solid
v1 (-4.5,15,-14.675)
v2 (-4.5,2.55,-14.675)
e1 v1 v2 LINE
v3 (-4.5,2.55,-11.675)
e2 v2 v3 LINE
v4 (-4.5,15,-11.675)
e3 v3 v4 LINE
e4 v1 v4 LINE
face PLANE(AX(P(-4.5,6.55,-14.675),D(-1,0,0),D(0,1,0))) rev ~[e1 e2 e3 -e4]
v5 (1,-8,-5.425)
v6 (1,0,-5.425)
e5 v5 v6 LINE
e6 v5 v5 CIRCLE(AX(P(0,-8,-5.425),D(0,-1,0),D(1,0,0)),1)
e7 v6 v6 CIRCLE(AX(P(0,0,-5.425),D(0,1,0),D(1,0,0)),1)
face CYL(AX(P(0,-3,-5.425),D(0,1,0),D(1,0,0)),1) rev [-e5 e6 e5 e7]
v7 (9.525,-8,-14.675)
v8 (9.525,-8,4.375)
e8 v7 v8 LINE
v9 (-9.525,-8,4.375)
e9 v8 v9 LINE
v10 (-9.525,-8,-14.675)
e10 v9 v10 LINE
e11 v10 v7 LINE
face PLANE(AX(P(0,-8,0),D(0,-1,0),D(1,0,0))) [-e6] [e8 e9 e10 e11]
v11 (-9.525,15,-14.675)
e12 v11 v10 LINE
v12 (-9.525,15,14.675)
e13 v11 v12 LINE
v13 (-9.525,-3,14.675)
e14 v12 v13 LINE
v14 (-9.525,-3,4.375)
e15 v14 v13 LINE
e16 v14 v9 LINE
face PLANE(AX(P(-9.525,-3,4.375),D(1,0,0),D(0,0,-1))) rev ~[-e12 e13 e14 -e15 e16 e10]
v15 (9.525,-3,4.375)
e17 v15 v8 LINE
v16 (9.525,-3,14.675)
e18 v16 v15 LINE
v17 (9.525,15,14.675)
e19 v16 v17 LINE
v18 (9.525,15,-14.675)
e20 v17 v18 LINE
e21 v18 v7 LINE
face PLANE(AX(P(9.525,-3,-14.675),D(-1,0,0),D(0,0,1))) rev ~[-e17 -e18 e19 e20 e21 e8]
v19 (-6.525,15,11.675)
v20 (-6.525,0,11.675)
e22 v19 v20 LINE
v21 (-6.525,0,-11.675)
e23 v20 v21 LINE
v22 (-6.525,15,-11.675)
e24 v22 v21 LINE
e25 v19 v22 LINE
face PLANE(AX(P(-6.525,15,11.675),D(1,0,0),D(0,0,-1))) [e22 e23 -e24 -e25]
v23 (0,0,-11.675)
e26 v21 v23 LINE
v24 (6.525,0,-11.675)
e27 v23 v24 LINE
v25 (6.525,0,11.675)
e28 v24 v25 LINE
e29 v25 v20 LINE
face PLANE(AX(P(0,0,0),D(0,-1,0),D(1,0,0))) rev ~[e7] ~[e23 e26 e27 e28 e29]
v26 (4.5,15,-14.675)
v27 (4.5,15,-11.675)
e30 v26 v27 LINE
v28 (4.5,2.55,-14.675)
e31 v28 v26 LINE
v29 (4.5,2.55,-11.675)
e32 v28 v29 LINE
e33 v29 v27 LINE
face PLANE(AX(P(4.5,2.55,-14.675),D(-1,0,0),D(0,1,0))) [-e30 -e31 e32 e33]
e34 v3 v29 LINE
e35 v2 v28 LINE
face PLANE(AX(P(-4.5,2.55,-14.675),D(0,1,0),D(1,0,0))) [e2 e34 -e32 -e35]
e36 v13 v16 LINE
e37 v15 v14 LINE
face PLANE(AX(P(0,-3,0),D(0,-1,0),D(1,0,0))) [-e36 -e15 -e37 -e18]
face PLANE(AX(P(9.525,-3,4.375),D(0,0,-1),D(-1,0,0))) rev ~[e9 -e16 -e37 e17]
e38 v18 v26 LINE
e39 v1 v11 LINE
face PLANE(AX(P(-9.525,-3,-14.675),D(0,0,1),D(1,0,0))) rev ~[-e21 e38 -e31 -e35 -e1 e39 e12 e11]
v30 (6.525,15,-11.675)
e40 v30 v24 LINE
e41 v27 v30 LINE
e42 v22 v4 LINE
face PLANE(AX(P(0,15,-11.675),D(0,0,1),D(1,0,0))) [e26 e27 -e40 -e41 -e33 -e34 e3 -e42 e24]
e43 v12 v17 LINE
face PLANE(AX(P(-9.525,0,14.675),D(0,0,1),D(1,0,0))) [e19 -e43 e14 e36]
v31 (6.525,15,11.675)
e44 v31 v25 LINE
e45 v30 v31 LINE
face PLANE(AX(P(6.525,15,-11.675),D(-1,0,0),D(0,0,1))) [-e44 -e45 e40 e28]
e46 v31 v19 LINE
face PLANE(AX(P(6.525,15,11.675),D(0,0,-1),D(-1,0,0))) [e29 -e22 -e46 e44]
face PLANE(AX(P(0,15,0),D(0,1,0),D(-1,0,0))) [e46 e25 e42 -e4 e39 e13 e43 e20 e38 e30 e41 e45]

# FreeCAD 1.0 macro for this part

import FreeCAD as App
import Part
import Sketcher

V = App.Vector
Q = App.Units.Quantity


def add_polygon(sketch, points):
    """Adds a closed chain of lines whose ends are joined by coincident constraints."""
    first, n = sketch.GeometryCount, len(points)
    for a, b in zip(points, points[1:] + points[:1]):
        sketch.addGeometry(Part.LineSegment(App.Vector(*a, 0), App.Vector(*b, 0)), False)
    for i in range(n):
        sketch.addConstraint(Sketcher.Constraint("Coincident", first + i, 2, first + (i + 1) % n, 1))

doc = App.newDocument("Part")
body = doc.addObject("PartDesign::Body", "Body")

# Sketch on XZ plane
sketch1 = body.newObject("Sketcher::SketchObject", "Sketch")
sketch1.AttachmentSupport = (doc.getObject("XZ_Plane"), [""])
sketch1.MapMode = "FlatFace"
add_polygon(sketch1, [(-10, -15), (-10, 15), (10, 15), (10, -15)])  # lines 0-3
add_polygon(sketch1, [(6, 11), (-6, 11), (-6, -11), (6, -11)])  # lines 4-7
sketch1.addConstraint(Sketcher.Constraint("Vertical", 0))
sketch1.addConstraint(Sketcher.Constraint("Horizontal", 1))
sketch1.addConstraint(Sketcher.Constraint("Vertical", 2))
sketch1.addConstraint(Sketcher.Constraint("Horizontal", 3))
sketch1.addConstraint(Sketcher.Constraint("Horizontal", 4))
sketch1.addConstraint(Sketcher.Constraint("Vertical", 5))
sketch1.addConstraint(Sketcher.Constraint("Horizontal", 6))
sketch1.addConstraint(Sketcher.Constraint("Vertical", 7))
sketch1.addConstraint(Sketcher.Constraint("Symmetric", 0, 2, 2, 2, -1, 1))
sketch1.addConstraint(Sketcher.Constraint("Symmetric", 4, 2, 6, 2, -1, 1))
sketch1.addConstraint(Sketcher.Constraint("DistanceX", 4, 2, 4, 1, Q("12.45 mm")))
sketch1.addConstraint(Sketcher.Constraint("DistanceY", 5, 2, 5, 1, Q("22.75 mm")))
sketch1.addConstraint(Sketcher.Constraint("DistanceX", 0, 2, 4, 2, Q("3.3 mm")))
sketch1.addConstraint(Sketcher.Constraint("DistanceY", 4, 2, 0, 2, Q("3.3 mm")))
pad1 = body.newObject("PartDesign::Pad", "Pad")
pad1.Profile = sketch1
pad1.Length = 15
pad1.Reversed = True

# Sketch on XY plane
sketch2 = body.newObject("Sketcher::SketchObject", "Sketch001")
sketch2.AttachmentSupport = (doc.getObject("XY_Plane"), [""])
sketch2.MapMode = "FlatFace"
sketch2.AttachmentOffset = App.Placement(V(0, 0, -14.675), App.Rotation())
add_polygon(sketch2, [(4, 3), (-4, 3), (-4, 15), (4, 15)])  # lines 0-3
sketch2.addConstraint(Sketcher.Constraint("Horizontal", 0))
sketch2.addConstraint(Sketcher.Constraint("Vertical", 1))
sketch2.addConstraint(Sketcher.Constraint("Horizontal", 2))
sketch2.addConstraint(Sketcher.Constraint("Vertical", 3))
sketch2.addConstraint(Sketcher.Constraint("DistanceX", 0, 2, 0, 1, Q("9 mm")))
sketch2.addConstraint(Sketcher.Constraint("DistanceY", -1, 1, 1, 2, Q("15 mm")))
sketch2.addConstraint(Sketcher.Constraint("DistanceY", 1, 1, 1, 2, Q("12.45 mm")))
sketch2.addConstraint(Sketcher.Constraint("DistanceX", 0, 2, -1, 1, Q("4.5 mm")))
pocket1 = body.newObject("PartDesign::Pocket", "Pocket")
pocket1.Profile = sketch2
pocket1.Type = "UpToFirst"
pocket1.Reversed = True

# Sketch on XZ plane
sketch3 = body.newObject("Sketcher::SketchObject", "Sketch002")
sketch3.AttachmentSupport = (doc.getObject("XZ_Plane"), [""])
sketch3.MapMode = "FlatFace"
add_polygon(sketch3, [(10, 15), (-10, 15), (-10, -15), (10, -15)])  # lines 0-3
sketch3.addConstraint(Sketcher.Constraint("Horizontal", 0))
sketch3.addConstraint(Sketcher.Constraint("Vertical", 1))
sketch3.addConstraint(Sketcher.Constraint("Horizontal", 2))
sketch3.addConstraint(Sketcher.Constraint("Vertical", 3))
sketch3.addConstraint(Sketcher.Constraint("Symmetric", 0, 2, 2, 2, -1, 1))
sketch3.addConstraint(Sketcher.Constraint("DistanceX", 0, 2, 0, 1, Q("19.05 mm")))
sketch3.addConstraint(Sketcher.Constraint("DistanceY", 1, 2, 1, 1, Q("29.35 mm")))
pad2 = body.newObject("PartDesign::Pad", "Pad001")
pad2.Profile = sketch3
pad2.Length = 3

# Sketch on XZ plane
sketch4 = body.newObject("Sketcher::SketchObject", "Sketch003")
sketch4.AttachmentSupport = (doc.getObject("XZ_Plane"), [""])
sketch4.MapMode = "FlatFace"
sketch4.AttachmentOffset = App.Placement(V(0, 0, 3), App.Rotation())
sketch4.addGeometry(Part.Circle(V(0, -5.4, 0), V(0, 0, 1), 1), False)
sketch4.addConstraint(Sketcher.Constraint("PointOnObject", 0, 3, -2))
sketch4.addConstraint(Sketcher.Constraint("Diameter", 0, Q("2 mm")))
sketch4.addConstraint(Sketcher.Constraint("DistanceY", 0, 3, -1, 1, Q("5.425 mm")))
pocket2 = body.newObject("PartDesign::Pocket", "Pocket001")
pocket2.Profile = sketch4
pocket2.Type = "UpToFirst"

# Sketch on XZ plane
sketch5 = body.newObject("Sketcher::SketchObject", "Sketch004")
sketch5.AttachmentSupport = (doc.getObject("XZ_Plane"), [""])
sketch5.MapMode = "FlatFace"
sketch5.AttachmentOffset = App.Placement(V(0, 0, 3), App.Rotation())
add_polygon(sketch5, [(-9.5, 4.4), (-9.5, -14.7), (9.5, -14.7), (9.5, 4.4)])  # lines 0-3
sketch5.addGeometry(Part.Circle(V(0, -5.4, 0), V(0, 0, 1), 1), False)  # 4
sketch5.addConstraint(Sketcher.Constraint("Vertical", 0))
sketch5.addConstraint(Sketcher.Constraint("Horizontal", 1))
sketch5.addConstraint(Sketcher.Constraint("Vertical", 2))
sketch5.addConstraint(Sketcher.Constraint("Horizontal", 3))
sketch5.addConstraint(Sketcher.Constraint("PointOnObject", 4, 3, -2))
sketch5.addConstraint(Sketcher.Constraint("Equal", 3, 0))
sketch5.addConstraint(Sketcher.Constraint("Diameter", 4, Q("2 mm")))
sketch5.addConstraint(Sketcher.Constraint("DistanceX", 1, 1, 1, 2, Q("19.05 mm")))
sketch5.addConstraint(Sketcher.Constraint("DistanceY", 4, 3, 2, 2, Q("9.8 mm")))
sketch5.addConstraint(Sketcher.Constraint("DistanceY", 4, 3, -1, 1, Q("5.425 mm")))
sketch5.addConstraint(Sketcher.Constraint("DistanceX", 0, 2, -1, 1, Q("9.525 mm")))
pad3 = body.newObject("PartDesign::Pad", "Pad002")
pad3.Profile = sketch5
pad3.Length = 5

# Sketch on XZ plane
sketch6 = body.newObject("Sketcher::SketchObject", "Sketch005")
sketch6.AttachmentSupport = (doc.getObject("XZ_Plane"), [""])
sketch6.MapMode = "FlatFace"
sketch6.AttachmentOffset = App.Placement(V(0, 0, -15), App.Rotation())
add_polygon(sketch6, [(6.5, -11.7), (0, -11.7), (-6.5, -11.7), (-6.5, 11.7), (6.5, 11.7)])  # lines 0-4
sketch6.addGeometry(Part.Circle(V(0, -5.4, 0), V(0, 0, 1), 1), False)  # 5
sketch6.addConstraint(Sketcher.Constraint("Horizontal", 0))
sketch6.addConstraint(Sketcher.Constraint("Horizontal", 1))
sketch6.addConstraint(Sketcher.Constraint("Vertical", 2))
sketch6.addConstraint(Sketcher.Constraint("Horizontal", 3))
sketch6.addConstraint(Sketcher.Constraint("Vertical", 4))
sketch6.addConstraint(Sketcher.Constraint("Symmetric", 1, 2, 3, 2, -1, 1))
sketch6.addConstraint(Sketcher.Constraint("PointOnObject", 5, 3, -2))
sketch6.addConstraint(Sketcher.Constraint("PointOnObject", 0, 2, -2))
sketch6.addConstraint(Sketcher.Constraint("Diameter", 5, Q("2 mm")))
sketch6.addConstraint(Sketcher.Constraint("DistanceX", 3, 1, 3, 2, Q("13.05 mm")))
sketch6.addConstraint(Sketcher.Constraint("DistanceY", 2, 1, 2, 2, Q("23.35 mm")))
sketch6.addConstraint(Sketcher.Constraint("DistanceY", 5, 3, 2, 2, Q("17.1 mm")))
pocket3 = body.newObject("PartDesign::Pocket", "Pocket002")
pocket3.Profile = sketch6
pocket3.Length = 15
pocket3.Reversed = True

doc.recompute()
